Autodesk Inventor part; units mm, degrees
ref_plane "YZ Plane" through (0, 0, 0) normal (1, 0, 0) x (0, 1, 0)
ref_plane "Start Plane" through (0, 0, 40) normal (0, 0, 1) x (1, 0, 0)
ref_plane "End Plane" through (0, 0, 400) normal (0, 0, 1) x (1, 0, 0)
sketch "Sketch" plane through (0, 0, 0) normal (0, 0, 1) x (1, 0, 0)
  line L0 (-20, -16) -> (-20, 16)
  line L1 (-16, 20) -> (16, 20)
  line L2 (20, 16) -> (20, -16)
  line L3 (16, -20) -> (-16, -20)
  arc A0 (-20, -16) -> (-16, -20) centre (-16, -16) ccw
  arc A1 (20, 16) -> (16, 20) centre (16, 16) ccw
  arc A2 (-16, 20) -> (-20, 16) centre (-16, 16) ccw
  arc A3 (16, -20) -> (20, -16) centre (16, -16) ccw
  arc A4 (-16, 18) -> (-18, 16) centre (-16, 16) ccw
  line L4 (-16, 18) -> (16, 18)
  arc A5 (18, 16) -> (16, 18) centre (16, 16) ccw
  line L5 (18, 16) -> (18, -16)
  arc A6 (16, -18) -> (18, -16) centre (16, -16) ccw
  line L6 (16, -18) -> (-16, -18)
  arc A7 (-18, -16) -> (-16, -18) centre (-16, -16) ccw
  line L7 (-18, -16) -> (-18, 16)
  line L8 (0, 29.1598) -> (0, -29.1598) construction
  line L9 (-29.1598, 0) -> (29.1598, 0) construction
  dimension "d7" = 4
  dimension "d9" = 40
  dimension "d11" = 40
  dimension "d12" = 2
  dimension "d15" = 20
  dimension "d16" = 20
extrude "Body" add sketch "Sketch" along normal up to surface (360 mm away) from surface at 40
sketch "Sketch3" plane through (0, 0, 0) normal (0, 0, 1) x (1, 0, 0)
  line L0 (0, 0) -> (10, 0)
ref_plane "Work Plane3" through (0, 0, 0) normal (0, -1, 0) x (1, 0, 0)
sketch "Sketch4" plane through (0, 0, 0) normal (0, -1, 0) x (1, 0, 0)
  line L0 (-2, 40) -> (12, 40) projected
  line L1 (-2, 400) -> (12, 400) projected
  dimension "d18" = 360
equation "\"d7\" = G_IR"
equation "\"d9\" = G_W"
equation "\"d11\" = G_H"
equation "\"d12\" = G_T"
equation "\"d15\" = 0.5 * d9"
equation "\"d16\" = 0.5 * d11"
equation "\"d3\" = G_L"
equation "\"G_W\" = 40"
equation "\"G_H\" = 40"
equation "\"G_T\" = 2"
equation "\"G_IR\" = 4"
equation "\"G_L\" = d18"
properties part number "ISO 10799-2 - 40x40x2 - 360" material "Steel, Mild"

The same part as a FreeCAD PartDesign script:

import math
import FreeCAD as App
import Part
import Sketcher

V = App.Vector
Q = App.Units.Quantity

doc = App.newDocument("Part")
body = doc.addObject("PartDesign::Body", "Body")

sketch1 = body.newObject("Sketcher::SketchObject", "Sketch")
sketch1.AttachmentSupport = (doc.getObject("XY_Plane"), [""])
sketch1.MapMode = "FlatFace"
sketch1.AttachmentOffset = App.Placement(V(0, 0, 40), App.Rotation())
sketch1.addGeometry(Part.LineSegment(V(-20, 16, 0), V(-20, -16, 0)), False)
sketch1.addGeometry(Part.ArcOfCircle(Part.Circle(V(-16, -16, 0), V(0, 0, 1), 4), math.radians(180), math.radians(270)), False)
sketch1.addGeometry(Part.LineSegment(V(-16, -20, 0), V(16, -20, 0)), False)
sketch1.addGeometry(Part.ArcOfCircle(Part.Circle(V(16, -16, 0), V(0, 0, 1), 4), math.radians(-90), math.radians(0)), False)
sketch1.addGeometry(Part.LineSegment(V(20, -16, 0), V(20, 16, 0)), False)
sketch1.addGeometry(Part.ArcOfCircle(Part.Circle(V(16, 16, 0), V(0, 0, 1), 4), math.radians(0), math.radians(90)), False)
sketch1.addGeometry(Part.LineSegment(V(16, 20, 0), V(-16, 20, 0)), False)
sketch1.addGeometry(Part.ArcOfCircle(Part.Circle(V(-16, 16, 0), V(0, 0, 1), 4), math.radians(90), math.radians(180)), False)
sketch1.addGeometry(Part.ArcOfCircle(Part.Circle(V(-16, 16, 0), V(0, 0, 1), 2), math.radians(90), math.radians(180)), False)
sketch1.addGeometry(Part.LineSegment(V(-16, 18, 0), V(16, 18, 0)), False)
sketch1.addGeometry(Part.ArcOfCircle(Part.Circle(V(16, 16, 0), V(0, 0, 1), 2), math.radians(0), math.radians(90)), False)
sketch1.addGeometry(Part.LineSegment(V(18, 16, 0), V(18, -16, 0)), False)
sketch1.addGeometry(Part.ArcOfCircle(Part.Circle(V(16, -16, 0), V(0, 0, 1), 2), math.radians(-90), math.radians(0)), False)
sketch1.addGeometry(Part.LineSegment(V(16, -18, 0), V(-16, -18, 0)), False)
sketch1.addGeometry(Part.ArcOfCircle(Part.Circle(V(-16, -16, 0), V(0, 0, 1), 2), math.radians(180), math.radians(270)), False)
sketch1.addGeometry(Part.LineSegment(V(-18, -16, 0), V(-18, 16, 0)), False)
sketch1.addConstraint(Sketcher.Constraint("Tangent", 0, 2, 1, 1))
sketch1.addConstraint(Sketcher.Constraint("Tangent", 1, 2, 2, 1))
sketch1.addConstraint(Sketcher.Constraint("Tangent", 2, 2, 3, 1))
sketch1.addConstraint(Sketcher.Constraint("Tangent", 3, 2, 4, 1))
sketch1.addConstraint(Sketcher.Constraint("Tangent", 4, 2, 5, 1))
sketch1.addConstraint(Sketcher.Constraint("Tangent", 5, 2, 6, 1))
sketch1.addConstraint(Sketcher.Constraint("Tangent", 6, 2, 7, 1))
sketch1.addConstraint(Sketcher.Constraint("Tangent", 7, 2, 0, 1))
sketch1.addConstraint(Sketcher.Constraint("Tangent", 8, 1, 9, 1))
sketch1.addConstraint(Sketcher.Constraint("Tangent", 9, 2, 10, 2))
sketch1.addConstraint(Sketcher.Constraint("Tangent", 10, 1, 11, 1))
sketch1.addConstraint(Sketcher.Constraint("Tangent", 11, 2, 12, 2))
sketch1.addConstraint(Sketcher.Constraint("Tangent", 12, 1, 13, 1))
sketch1.addConstraint(Sketcher.Constraint("Tangent", 13, 2, 14, 2))
sketch1.addConstraint(Sketcher.Constraint("Tangent", 14, 1, 15, 1))
sketch1.addConstraint(Sketcher.Constraint("Tangent", 15, 2, 8, 2))
sketch1.addConstraint(Sketcher.Constraint("Vertical", 0))
sketch1.addConstraint(Sketcher.Constraint("Horizontal", 2))
sketch1.addConstraint(Sketcher.Constraint("Vertical", 4))
sketch1.addConstraint(Sketcher.Constraint("Horizontal", 6))
sketch1.addConstraint(Sketcher.Constraint("Horizontal", 9))
sketch1.addConstraint(Sketcher.Constraint("Vertical", 11))
sketch1.addConstraint(Sketcher.Constraint("Horizontal", 13))
sketch1.addConstraint(Sketcher.Constraint("Vertical", 15))
sketch1.addConstraint(Sketcher.Constraint("Coincident", 8, 3, 7, 3))
sketch1.addConstraint(Sketcher.Constraint("Coincident", 10, 3, 5, 3))
sketch1.addConstraint(Sketcher.Constraint("Coincident", 12, 3, 3, 3))
sketch1.addConstraint(Sketcher.Constraint("Equal", 1, 3))
sketch1.addConstraint(Sketcher.Constraint("Equal", 3, 5))
sketch1.addConstraint(Sketcher.Constraint("Equal", 5, 7))
sketch1.addConstraint(Sketcher.Constraint("Equal", 12, 14))
sketch1.addConstraint(Sketcher.Constraint("Symmetric", 1, 3, 5, 3, -1, 1))
sketch1.addConstraint(Sketcher.Constraint("Equal", 13, 0))
sketch1.addConstraint(Sketcher.Constraint("Radius", 1, Q("4 mm")))
sketch1.addConstraint(Sketcher.Constraint("Radius", 8, Q("2 mm")))
sketch1.addConstraint(Sketcher.Constraint("DistanceX", 0, 2, -1, 1, Q("20 mm")))
pad1 = body.newObject("PartDesign::Pad", "Pad")
pad1.Profile = sketch1
pad1.Length = 360

doc.recompute()
